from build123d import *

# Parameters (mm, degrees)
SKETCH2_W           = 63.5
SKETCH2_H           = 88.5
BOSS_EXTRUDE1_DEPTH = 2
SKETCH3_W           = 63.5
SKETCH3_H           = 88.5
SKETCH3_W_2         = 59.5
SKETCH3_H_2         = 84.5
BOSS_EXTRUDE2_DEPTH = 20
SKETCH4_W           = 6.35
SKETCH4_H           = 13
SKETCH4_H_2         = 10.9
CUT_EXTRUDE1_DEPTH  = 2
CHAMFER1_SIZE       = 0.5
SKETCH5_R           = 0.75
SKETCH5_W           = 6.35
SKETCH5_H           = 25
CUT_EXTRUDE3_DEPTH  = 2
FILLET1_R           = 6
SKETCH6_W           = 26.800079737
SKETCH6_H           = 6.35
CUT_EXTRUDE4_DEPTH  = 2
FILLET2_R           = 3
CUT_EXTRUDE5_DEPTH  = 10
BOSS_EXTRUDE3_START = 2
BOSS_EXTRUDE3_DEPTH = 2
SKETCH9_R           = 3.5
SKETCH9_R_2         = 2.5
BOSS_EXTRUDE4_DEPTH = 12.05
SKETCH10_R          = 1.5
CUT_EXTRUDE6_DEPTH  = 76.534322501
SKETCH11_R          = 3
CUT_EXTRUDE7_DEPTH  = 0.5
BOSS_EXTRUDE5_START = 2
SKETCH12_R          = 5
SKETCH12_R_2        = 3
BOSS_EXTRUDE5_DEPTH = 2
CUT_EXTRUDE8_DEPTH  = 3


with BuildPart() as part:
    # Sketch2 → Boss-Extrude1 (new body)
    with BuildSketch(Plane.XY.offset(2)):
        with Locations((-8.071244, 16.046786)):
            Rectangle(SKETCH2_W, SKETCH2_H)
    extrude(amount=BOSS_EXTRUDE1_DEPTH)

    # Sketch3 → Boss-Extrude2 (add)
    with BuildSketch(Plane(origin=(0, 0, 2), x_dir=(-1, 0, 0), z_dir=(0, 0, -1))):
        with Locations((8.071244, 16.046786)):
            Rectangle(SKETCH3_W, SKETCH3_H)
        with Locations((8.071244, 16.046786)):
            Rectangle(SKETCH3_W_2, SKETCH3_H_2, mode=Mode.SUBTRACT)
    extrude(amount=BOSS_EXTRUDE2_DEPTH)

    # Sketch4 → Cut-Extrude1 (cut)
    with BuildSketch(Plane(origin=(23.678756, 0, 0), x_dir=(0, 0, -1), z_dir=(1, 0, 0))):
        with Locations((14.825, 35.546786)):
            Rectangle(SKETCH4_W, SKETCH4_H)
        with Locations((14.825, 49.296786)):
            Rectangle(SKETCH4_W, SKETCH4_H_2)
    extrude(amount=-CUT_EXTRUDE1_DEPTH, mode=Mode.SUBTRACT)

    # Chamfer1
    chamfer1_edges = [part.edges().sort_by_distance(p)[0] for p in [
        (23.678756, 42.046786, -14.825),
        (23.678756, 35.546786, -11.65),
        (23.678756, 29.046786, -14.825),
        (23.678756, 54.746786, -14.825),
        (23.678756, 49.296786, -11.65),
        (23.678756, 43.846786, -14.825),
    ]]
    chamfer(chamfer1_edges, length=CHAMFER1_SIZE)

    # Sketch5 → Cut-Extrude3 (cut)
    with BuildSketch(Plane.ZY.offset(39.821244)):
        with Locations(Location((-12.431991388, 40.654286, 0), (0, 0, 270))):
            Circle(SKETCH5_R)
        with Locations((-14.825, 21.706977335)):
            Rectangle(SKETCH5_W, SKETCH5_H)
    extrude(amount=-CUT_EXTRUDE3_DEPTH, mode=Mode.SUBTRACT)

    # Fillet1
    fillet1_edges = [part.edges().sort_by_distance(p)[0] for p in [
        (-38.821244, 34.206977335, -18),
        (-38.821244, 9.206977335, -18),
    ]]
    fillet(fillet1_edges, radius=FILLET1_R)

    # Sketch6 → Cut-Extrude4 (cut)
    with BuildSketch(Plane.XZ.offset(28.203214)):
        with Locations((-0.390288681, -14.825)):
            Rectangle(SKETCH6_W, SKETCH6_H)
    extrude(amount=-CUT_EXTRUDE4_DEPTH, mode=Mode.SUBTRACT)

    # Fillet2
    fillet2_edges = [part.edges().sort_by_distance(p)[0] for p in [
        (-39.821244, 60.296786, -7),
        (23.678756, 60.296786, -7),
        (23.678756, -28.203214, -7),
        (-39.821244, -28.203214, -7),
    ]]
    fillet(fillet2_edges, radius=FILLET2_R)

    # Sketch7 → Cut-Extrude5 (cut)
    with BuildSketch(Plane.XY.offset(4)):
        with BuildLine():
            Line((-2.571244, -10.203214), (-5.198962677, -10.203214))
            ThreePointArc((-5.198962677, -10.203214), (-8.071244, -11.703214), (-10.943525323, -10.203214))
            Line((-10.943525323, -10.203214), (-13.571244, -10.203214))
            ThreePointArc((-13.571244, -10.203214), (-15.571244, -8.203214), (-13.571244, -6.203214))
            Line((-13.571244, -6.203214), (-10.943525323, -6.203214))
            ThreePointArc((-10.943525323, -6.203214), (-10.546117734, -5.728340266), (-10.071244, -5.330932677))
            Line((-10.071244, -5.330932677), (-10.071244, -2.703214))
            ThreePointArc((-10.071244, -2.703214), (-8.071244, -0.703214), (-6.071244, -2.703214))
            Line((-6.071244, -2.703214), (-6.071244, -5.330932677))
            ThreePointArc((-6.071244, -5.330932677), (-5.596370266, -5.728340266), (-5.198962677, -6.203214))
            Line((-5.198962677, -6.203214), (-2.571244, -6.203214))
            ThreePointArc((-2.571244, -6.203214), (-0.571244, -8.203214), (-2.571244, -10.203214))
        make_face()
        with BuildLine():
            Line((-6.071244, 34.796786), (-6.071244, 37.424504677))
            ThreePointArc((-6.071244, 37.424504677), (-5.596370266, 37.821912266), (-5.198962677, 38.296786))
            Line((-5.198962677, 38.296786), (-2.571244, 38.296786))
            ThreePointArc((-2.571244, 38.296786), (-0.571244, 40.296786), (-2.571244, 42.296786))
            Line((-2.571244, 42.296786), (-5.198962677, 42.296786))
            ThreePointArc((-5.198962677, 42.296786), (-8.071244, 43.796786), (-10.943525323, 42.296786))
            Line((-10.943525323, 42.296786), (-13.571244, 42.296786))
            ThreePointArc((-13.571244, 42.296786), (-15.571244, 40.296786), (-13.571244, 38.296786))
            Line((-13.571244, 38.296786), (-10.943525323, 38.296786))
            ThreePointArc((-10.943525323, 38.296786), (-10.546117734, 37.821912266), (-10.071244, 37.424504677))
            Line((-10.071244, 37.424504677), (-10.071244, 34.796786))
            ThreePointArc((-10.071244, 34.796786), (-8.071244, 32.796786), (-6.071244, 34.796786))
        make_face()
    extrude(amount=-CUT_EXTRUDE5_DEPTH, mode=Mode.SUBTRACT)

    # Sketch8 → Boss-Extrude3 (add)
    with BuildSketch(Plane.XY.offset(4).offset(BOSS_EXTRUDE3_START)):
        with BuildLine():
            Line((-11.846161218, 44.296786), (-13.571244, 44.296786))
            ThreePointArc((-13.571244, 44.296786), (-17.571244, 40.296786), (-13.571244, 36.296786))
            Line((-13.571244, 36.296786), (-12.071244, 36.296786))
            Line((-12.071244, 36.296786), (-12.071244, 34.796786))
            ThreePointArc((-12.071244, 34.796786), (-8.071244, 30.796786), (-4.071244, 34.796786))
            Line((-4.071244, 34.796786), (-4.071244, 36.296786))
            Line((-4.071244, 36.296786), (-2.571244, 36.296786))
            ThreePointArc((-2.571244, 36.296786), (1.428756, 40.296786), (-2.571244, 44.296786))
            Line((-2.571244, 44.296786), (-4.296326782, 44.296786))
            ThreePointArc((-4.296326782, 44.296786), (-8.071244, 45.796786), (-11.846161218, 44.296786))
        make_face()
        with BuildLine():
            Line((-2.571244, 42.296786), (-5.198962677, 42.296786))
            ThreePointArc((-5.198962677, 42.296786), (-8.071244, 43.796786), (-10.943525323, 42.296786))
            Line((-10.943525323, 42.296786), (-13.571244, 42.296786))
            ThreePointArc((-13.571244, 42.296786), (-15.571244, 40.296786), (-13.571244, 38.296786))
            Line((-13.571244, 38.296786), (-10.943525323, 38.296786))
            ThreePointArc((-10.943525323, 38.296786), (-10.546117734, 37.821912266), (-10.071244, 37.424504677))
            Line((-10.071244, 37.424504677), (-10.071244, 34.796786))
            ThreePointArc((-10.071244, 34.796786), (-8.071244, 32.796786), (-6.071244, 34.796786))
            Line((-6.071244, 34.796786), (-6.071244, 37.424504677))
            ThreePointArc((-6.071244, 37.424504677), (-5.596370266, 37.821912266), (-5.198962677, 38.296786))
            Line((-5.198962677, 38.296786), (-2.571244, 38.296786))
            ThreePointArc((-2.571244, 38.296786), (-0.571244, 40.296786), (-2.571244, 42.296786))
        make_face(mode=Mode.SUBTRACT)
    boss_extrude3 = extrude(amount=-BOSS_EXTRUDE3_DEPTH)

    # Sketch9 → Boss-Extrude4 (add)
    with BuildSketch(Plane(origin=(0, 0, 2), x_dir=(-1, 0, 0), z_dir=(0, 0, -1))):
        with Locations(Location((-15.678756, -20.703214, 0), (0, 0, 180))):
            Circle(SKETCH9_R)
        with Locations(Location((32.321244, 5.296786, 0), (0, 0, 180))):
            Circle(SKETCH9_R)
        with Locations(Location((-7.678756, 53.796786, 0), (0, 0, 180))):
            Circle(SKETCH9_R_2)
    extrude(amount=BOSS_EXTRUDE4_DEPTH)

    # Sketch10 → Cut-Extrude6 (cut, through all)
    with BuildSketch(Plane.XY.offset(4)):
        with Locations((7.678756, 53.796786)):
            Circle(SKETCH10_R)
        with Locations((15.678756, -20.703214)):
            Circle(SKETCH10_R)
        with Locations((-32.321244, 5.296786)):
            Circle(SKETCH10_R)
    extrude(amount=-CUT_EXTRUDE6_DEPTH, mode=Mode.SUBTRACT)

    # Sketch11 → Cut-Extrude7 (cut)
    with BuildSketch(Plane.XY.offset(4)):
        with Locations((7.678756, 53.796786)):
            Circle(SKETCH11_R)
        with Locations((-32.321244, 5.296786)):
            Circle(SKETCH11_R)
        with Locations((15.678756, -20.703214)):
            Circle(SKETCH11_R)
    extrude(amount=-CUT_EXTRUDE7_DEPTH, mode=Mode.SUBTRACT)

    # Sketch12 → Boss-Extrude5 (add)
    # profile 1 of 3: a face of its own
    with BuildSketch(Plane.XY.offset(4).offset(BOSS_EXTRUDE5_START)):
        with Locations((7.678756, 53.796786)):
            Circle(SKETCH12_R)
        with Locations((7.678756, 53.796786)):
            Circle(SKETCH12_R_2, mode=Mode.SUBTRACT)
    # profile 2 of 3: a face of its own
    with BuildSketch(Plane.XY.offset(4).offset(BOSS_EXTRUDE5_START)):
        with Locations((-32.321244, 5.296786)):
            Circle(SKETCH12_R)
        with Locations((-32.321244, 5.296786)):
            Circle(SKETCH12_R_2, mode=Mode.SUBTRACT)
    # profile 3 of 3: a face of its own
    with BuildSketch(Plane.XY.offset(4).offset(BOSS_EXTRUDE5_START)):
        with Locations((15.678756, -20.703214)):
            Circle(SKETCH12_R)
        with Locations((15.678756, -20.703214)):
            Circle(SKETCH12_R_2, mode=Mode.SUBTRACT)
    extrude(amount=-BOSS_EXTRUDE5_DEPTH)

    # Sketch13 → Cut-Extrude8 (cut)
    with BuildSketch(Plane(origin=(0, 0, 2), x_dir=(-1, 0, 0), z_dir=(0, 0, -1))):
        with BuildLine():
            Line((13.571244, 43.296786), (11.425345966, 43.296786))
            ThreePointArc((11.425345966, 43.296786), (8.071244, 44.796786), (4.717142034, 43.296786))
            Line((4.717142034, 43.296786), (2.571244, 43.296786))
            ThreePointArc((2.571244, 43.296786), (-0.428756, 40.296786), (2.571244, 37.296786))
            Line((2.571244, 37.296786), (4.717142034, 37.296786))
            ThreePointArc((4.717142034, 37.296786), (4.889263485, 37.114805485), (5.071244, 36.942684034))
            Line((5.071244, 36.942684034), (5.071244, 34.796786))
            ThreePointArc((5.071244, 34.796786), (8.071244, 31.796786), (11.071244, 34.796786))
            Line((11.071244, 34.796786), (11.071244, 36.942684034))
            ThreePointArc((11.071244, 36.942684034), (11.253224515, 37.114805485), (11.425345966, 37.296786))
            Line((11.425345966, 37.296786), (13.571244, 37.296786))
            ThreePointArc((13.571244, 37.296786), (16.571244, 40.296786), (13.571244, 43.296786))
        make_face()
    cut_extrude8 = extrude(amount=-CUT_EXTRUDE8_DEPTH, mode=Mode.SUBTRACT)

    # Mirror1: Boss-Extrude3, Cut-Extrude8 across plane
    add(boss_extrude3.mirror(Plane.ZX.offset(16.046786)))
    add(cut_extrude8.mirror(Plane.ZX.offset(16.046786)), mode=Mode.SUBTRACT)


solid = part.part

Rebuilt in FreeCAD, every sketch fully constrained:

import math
import FreeCAD as App
import Part
import Sketcher


def edges_at(feature, points):
    """Names of the edges that pass closest to the given points."""
    edges = feature.Shape.Edges
    near = lambda p: min(range(len(edges)), key=lambda i: edges[i].distToShape(Part.Vertex(*p))[0])
    return sorted({f"Edge{near(p) + 1}" for p in points})


def add_polygon(sketch, points):
    """Adds a closed chain of lines whose ends are joined by coincident constraints."""
    first, n = sketch.GeometryCount, len(points)
    for a, b in zip(points, points[1:] + points[:1]):
        sketch.addGeometry(Part.LineSegment(App.Vector(*a, 0), App.Vector(*b, 0)), False)
    for i in range(n):
        sketch.addConstraint(Sketcher.Constraint("Coincident", first + i, 2, first + (i + 1) % n, 1))

doc = App.newDocument("Part")
body = doc.addObject("PartDesign::Body", "Body")

sketch1 = body.newObject("Sketcher::SketchObject", "Sketch")
sketch1.AttachmentSupport = (doc.getObject("XY_Plane"), [""])
sketch1.MapMode = "FlatFace"
sketch1.AttachmentOffset = App.Placement(App.Vector(0, 0, 2), App.Rotation())
add_polygon(sketch1, [(-40, 60), (-40, -28), (24, -28), (24, 60)])
sketch1.addConstraint([
    Sketcher.Constraint("Vertical", 0),
    Sketcher.Constraint("Horizontal", 1),
    Sketcher.Constraint("Vertical", 2),
    Sketcher.Constraint("Horizontal", 3),
    Sketcher.Constraint("DistanceX", 1, 1, 1, 2, 63.5),
    Sketcher.Constraint("DistanceY", 0, 2, 0, 1, 88.5),
    Sketcher.Constraint("DistanceX", 0, 2, -1, 1, 39.821244),
    Sketcher.Constraint("DistanceY", 0, 2, -1, 1, 28.203214),
])
pad1 = body.newObject("PartDesign::Pad", "Pad")
pad1.Profile = sketch1
pad1.Length = 2

sketch2 = body.newObject("Sketcher::SketchObject", "Sketch001")
sketch2.AttachmentSupport = (doc.getObject("XY_Plane"), [""])
sketch2.MapMode = "FlatFace"
sketch2.AttachmentOffset = App.Placement(App.Vector(0, 0, 2), App.Rotation())
add_polygon(sketch2, [(24, 60), (24, -28), (-40, -28), (-40, 60)])
add_polygon(sketch2, [(-38, -26), (22, -26), (22, 58), (-38, 58)])
sketch2.addConstraint([
    Sketcher.Constraint("Vertical", 0),
    Sketcher.Constraint("Horizontal", 1),
    Sketcher.Constraint("Vertical", 2),
    Sketcher.Constraint("Horizontal", 3),
    Sketcher.Constraint("Horizontal", 4),
    Sketcher.Constraint("Vertical", 5),
    Sketcher.Constraint("Horizontal", 6),
    Sketcher.Constraint("Vertical", 7),
    Sketcher.Constraint("DistanceX", 1, 2, 1, 1, 63.5),
    Sketcher.Constraint("DistanceX", 4, 1, 4, 2, 59.5),
    Sketcher.Constraint("DistanceY", 0, 2, 0, 1, 88.5),
    Sketcher.Constraint("DistanceY", 5, 1, 5, 2, 84.5),
    Sketcher.Constraint("DistanceX", 4, 2, 0, 2, 2.0),
    Sketcher.Constraint("DistanceY", 0, 2, 4, 2, 2.0),
    Sketcher.Constraint("DistanceX", -1, 1, 0, 2, 23.678756),
    Sketcher.Constraint("DistanceY", 0, 2, -1, 1, 28.203214),
])
pad2 = body.newObject("PartDesign::Pad", "Pad001")
pad2.Profile = sketch2
pad2.Length = 20
pad2.Reversed = True

sketch3 = body.newObject("Sketcher::SketchObject", "Sketch002")
sketch3.AttachmentSupport = (doc.getObject("YZ_Plane"), [""])
sketch3.MapMode = "FlatFace"
sketch3.AttachmentOffset = App.Placement(App.Vector(0, 0, 23.678756), App.Rotation())
add_polygon(sketch3, [(42, -12), (29, -12), (29, -18), (42, -18)])
add_polygon(sketch3, [(55, -12), (44, -12), (44, -18), (55, -18)])
sketch3.addConstraint([
    Sketcher.Constraint("Horizontal", 0),
    Sketcher.Constraint("Vertical", 1),
    Sketcher.Constraint("Horizontal", 2),
    Sketcher.Constraint("Vertical", 3),
    Sketcher.Constraint("Horizontal", 4),
    Sketcher.Constraint("Vertical", 5),
    Sketcher.Constraint("Horizontal", 6),
    Sketcher.Constraint("Vertical", 7),
    Sketcher.Constraint("Horizontal", 3, 2, 4, 2),
    Sketcher.Constraint("Horizontal", 2, 2, 5, 2),
    Sketcher.Constraint("DistanceX", 0, 2, 0, 1, 13.0),
    Sketcher.Constraint("DistanceX", 4, 2, 4, 1, 10.9),
    Sketcher.Constraint("DistanceY", 1, 2, -1, 1, 18.0),
    Sketcher.Constraint("DistanceY", 1, 2, 1, 1, 6.35),
    Sketcher.Constraint("DistanceX", 3, 2, 4, 2, 1.8),
    Sketcher.Constraint("DistanceX", -1, 1, 0, 2, 29.046786),
])
pocket1 = body.newObject("PartDesign::Pocket", "Pocket")
pocket1.Profile = sketch3
pocket1.Length = 2
doc.recompute()

chamfer = body.newObject("PartDesign::Chamfer", "Chamfer")
chamfer.Base = (pocket1, edges_at(pocket1, [
    (23.679, 42.047, -14.825),
    (23.679, 35.547, -11.65),
    (23.679, 29.047, -14.825),
    (23.679, 54.747, -14.825),
    (23.679, 49.297, -11.65),
    (23.679, 43.847, -14.825),
]))
chamfer.Size = 0.5

sketch4 = body.newObject("Sketcher::SketchObject", "Sketch003")
sketch4.AttachmentSupport = (doc.getObject("YZ_Plane"), [""])
sketch4.MapMode = "FlatFace"
sketch4.AttachmentOffset = App.Placement(App.Vector(0, 0, -39.821244), App.Rotation())
sketch4.addGeometry(Part.Circle(App.Vector(40.7, -12.4, 0), App.Vector(0, 0, 1), 0.8), False)
add_polygon(sketch4, [(34.2, -18), (9.2, -18), (9.2, -11.7), (34.2, -11.7)])
sketch4.addConstraint([
    Sketcher.Constraint("Horizontal", 1),
    Sketcher.Constraint("Vertical", 2),
    Sketcher.Constraint("Horizontal", 3),
    Sketcher.Constraint("Vertical", 4),
    Sketcher.Constraint("Diameter", 0, 1.5),
    Sketcher.Constraint("DistanceX", 1, 2, 1, 1, 25.0),
    Sketcher.Constraint("DistanceY", 1, 2, -1, 1, 18.0),
    Sketcher.Constraint("DistanceY", 2, 1, 2, 2, 6.35),
    Sketcher.Constraint("DistanceY", 0, 3, -1, 1, 12.431991),
    Sketcher.Constraint("DistanceX", 1, 2, 0, 3, 31.447309),
    Sketcher.Constraint("DistanceX", -1, 1, 0, 3, 40.654286),
])
pocket2 = body.newObject("PartDesign::Pocket", "Pocket001")
pocket2.Profile = sketch4
pocket2.Length = 2
pocket2.Reversed = True
doc.recompute()

fillet = body.newObject("PartDesign::Fillet", "Fillet")
fillet.Base = (pocket2, edges_at(pocket2, [(-38.821, 34.207, -18), (-38.821, 9.207, -18)]))
fillet.Radius = 6

sketch5 = body.newObject("Sketcher::SketchObject", "Sketch004")
sketch5.AttachmentSupport = (doc.getObject("XZ_Plane"), [""])
sketch5.MapMode = "FlatFace"
sketch5.AttachmentOffset = App.Placement(App.Vector(0, 0, 28.203214), App.Rotation())
add_polygon(sketch5, [(-14, -12), (-14, -18), (13, -18), (13, -12)])
sketch5.addConstraint([
    Sketcher.Constraint("Vertical", 0),
    Sketcher.Constraint("Horizontal", 1),
    Sketcher.Constraint("Vertical", 2),
    Sketcher.Constraint("Horizontal", 3),
    Sketcher.Constraint("DistanceY", 0, 2, -1, 1, 18.0),
    Sketcher.Constraint("DistanceY", 0, 2, 0, 1, 6.35),
    Sketcher.Constraint("DistanceX", 1, 1, 1, 2, 26.80008),
    Sketcher.Constraint("DistanceX", 0, 2, -1, 1, 13.790329),
])
pocket3 = body.newObject("PartDesign::Pocket", "Pocket002")
pocket3.Profile = sketch5
pocket3.Length = 2
doc.recompute()

fillet2 = body.newObject("PartDesign::Fillet", "Fillet001")
fillet2.Base = (pocket3, edges_at(pocket3, [
    (-39.821, 60.297, -7),
    (23.679, 60.297, -7),
    (23.679, -28.203, -7),
    (-39.821, -28.203, -7),
]))
fillet2.Radius = 3

sketch6 = body.newObject("Sketcher::SketchObject", "Sketch005")
sketch6.AttachmentSupport = (doc.getObject("XY_Plane"), [""])
sketch6.MapMode = "FlatFace"
sketch6.AttachmentOffset = App.Placement(App.Vector(0, 0, 4), App.Rotation())
sketch6.addGeometry([
    Part.LineSegment(App.Vector(-5.2, -10.2, 0), App.Vector(-2.6, -10.2, 0)),
    Part.ArcOfCircle(Part.Circle(App.Vector(-2.6, -8.2, 0), App.Vector(0, 0, 1), 2), math.radians(-90), math.radians(90)),
    Part.LineSegment(App.Vector(-2.6, -6.2, 0), App.Vector(-5.2, -6.2, 0)),
    Part.ArcOfCircle(Part.Circle(App.Vector(-8.1, -8.2, 0), App.Vector(0, 0, 1), 3.5), math.radians(35), math.radians(55)),
    Part.LineSegment(App.Vector(-6.1, -5.3, 0), App.Vector(-6.1, -2.7, 0)),
    Part.ArcOfCircle(Part.Circle(App.Vector(-8.1, -2.7, 0), App.Vector(0, 0, 1), 2), math.radians(0), math.radians(180)),
    Part.LineSegment(App.Vector(-10.1, -2.7, 0), App.Vector(-10.1, -5.3, 0)),
    Part.ArcOfCircle(Part.Circle(App.Vector(-8.1, -8.2, 0), App.Vector(0, 0, 1), 3.5), math.radians(125), math.radians(145)),
    Part.LineSegment(App.Vector(-10.9, -6.2, 0), App.Vector(-13.6, -6.2, 0)),
    Part.ArcOfCircle(Part.Circle(App.Vector(-13.6, -8.2, 0), App.Vector(0, 0, 1), 2), math.radians(90), math.radians(270)),
    Part.LineSegment(App.Vector(-13.6, -10.2, 0), App.Vector(-10.9, -10.2, 0)),
    Part.ArcOfCircle(Part.Circle(App.Vector(-8.1, -8.2, 0), App.Vector(0, 0, 1), 3.5), math.radians(-145), math.radians(-35)),
    Part.LineSegment(App.Vector(-6.1, 34.8, 0), App.Vector(-6.1, 37.4, 0)),
    Part.ArcOfCircle(Part.Circle(App.Vector(-8.1, 40.3, 0), App.Vector(0, 0, 1), 3.5), math.radians(-55), math.radians(-35)),
    Part.LineSegment(App.Vector(-5.2, 38.3, 0), App.Vector(-2.6, 38.3, 0)),
    Part.ArcOfCircle(Part.Circle(App.Vector(-2.6, 40.3, 0), App.Vector(0, 0, 1), 2), math.radians(-90), math.radians(90)),
    Part.LineSegment(App.Vector(-2.6, 42.3, 0), App.Vector(-5.2, 42.3, 0)),
    Part.ArcOfCircle(Part.Circle(App.Vector(-8.1, 40.3, 0), App.Vector(0, 0, 1), 3.5), math.radians(35), math.radians(145)),
    Part.LineSegment(App.Vector(-10.9, 42.3, 0), App.Vector(-13.6, 42.3, 0)),
    Part.ArcOfCircle(Part.Circle(App.Vector(-13.6, 40.3, 0), App.Vector(0, 0, 1), 2), math.radians(90), math.radians(270)),
    Part.LineSegment(App.Vector(-13.6, 38.3, 0), App.Vector(-10.9, 38.3, 0)),
    Part.ArcOfCircle(Part.Circle(App.Vector(-8.1, 40.3, 0), App.Vector(0, 0, 1), 3.5), math.radians(-145), math.radians(-125)),
    Part.LineSegment(App.Vector(-10.1, 37.4, 0), App.Vector(-10.1, 34.8, 0)),
    Part.ArcOfCircle(Part.Circle(App.Vector(-8.1, 34.8, 0), App.Vector(0, 0, 1), 2), math.radians(180), math.radians(360)),
], False)
sketch6.addConstraint([
    Sketcher.Constraint("Tangent", 0, 2, 1, 1),
    Sketcher.Constraint("Tangent", 1, 2, 2, 1),
    Sketcher.Constraint("Coincident", 2, 2, 3, 1),
    Sketcher.Constraint("Coincident", 3, 2, 4, 1),
    Sketcher.Constraint("Tangent", 4, 2, 5, 1),
    Sketcher.Constraint("Tangent", 5, 2, 6, 1),
    Sketcher.Constraint("Coincident", 6, 2, 7, 1),
    Sketcher.Constraint("Coincident", 7, 2, 8, 1),
    Sketcher.Constraint("Tangent", 8, 2, 9, 1),
    Sketcher.Constraint("Tangent", 9, 2, 10, 1),
    Sketcher.Constraint("Coincident", 10, 2, 11, 1),
    Sketcher.Constraint("Coincident", 11, 2, 0, 1),
    Sketcher.Constraint("Coincident", 12, 2, 13, 1),
    Sketcher.Constraint("Coincident", 13, 2, 14, 1),
    Sketcher.Constraint("Tangent", 14, 2, 15, 1),
    Sketcher.Constraint("Tangent", 15, 2, 16, 1),
    Sketcher.Constraint("Coincident", 16, 2, 17, 1),
    Sketcher.Constraint("Coincident", 17, 2, 18, 1),
    Sketcher.Constraint("Tangent", 18, 2, 19, 1),
    Sketcher.Constraint("Tangent", 19, 2, 20, 1),
    Sketcher.Constraint("Coincident", 20, 2, 21, 1),
    Sketcher.Constraint("Coincident", 21, 2, 22, 1),
    Sketcher.Constraint("Tangent", 22, 2, 23, 1),
    Sketcher.Constraint("Tangent", 23, 2, 12, 1),
    Sketcher.Constraint("Horizontal", 0),
    Sketcher.Constraint("Horizontal", 2),
    Sketcher.Constraint("Vertical", 4),
    Sketcher.Constraint("Vertical", 6),
    Sketcher.Constraint("Horizontal", 8),
    Sketcher.Constraint("Horizontal", 10),
    Sketcher.Constraint("Vertical", 12),
    Sketcher.Constraint("Horizontal", 14),
    Sketcher.Constraint("Horizontal", 16),
    Sketcher.Constraint("Horizontal", 18),
    Sketcher.Constraint("Horizontal", 20),
    Sketcher.Constraint("Vertical", 22),
    Sketcher.Constraint("Coincident", 7, 3, 3, 3),
    Sketcher.Constraint("Coincident", 11, 3, 3, 3),
    Sketcher.Constraint("Coincident", 17, 3, 13, 3),
    Sketcher.Constraint("Coincident", 21, 3, 13, 3),
    Sketcher.Constraint("Equal", 1, 5),
    Sketcher.Constraint("Equal", 3, 7),
    Sketcher.Constraint("Equal", 5, 9),
    Sketcher.Constraint("Equal", 7, 11),
    Sketcher.Constraint("Equal", 11, 13),
    Sketcher.Constraint("Equal", 9, 15),
    Sketcher.Constraint("Equal", 13, 17),
    Sketcher.Constraint("Equal", 15, 19),
    Sketcher.Constraint("Equal", 17, 21),
    Sketcher.Constraint("Equal", 19, 23),
    Sketcher.Constraint("Horizontal", 1, 3, 3, 3),
    Sketcher.Constraint("Horizontal", 7, 3, 9, 3),
    Sketcher.Constraint("Horizontal", 13, 3, 15, 3),
    Sketcher.Constraint("Horizontal", 17, 3, 19, 3),
    Sketcher.Constraint("Horizontal", 3, 2, 6, 2),
    Sketcher.Constraint("Horizontal", 12, 2, 21, 2),
    Sketcher.Constraint("Vertical", 11, 3, 13, 3),
    Sketcher.Constraint("Vertical", 1, 3, 15, 3),
    Sketcher.Constraint("Vertical", 9, 3, 19, 3),
    Sketcher.Constraint("Equal", 2, 8),
    Sketcher.Constraint("Equal", 20, 4),
    Sketcher.Constraint("Equal", 6, 12),
    Sketcher.Constraint("Radius", 1, 2.0),
    Sketcher.Constraint("Radius", 3, 3.5),
    Sketcher.Constraint("DistanceX", 9, 3, 1, 3, 11.0),
    Sketcher.Constraint("DistanceY", 5, 3, 13, 3, 43.0),
    Sketcher.Constraint("DistanceX", 1, 3, -1, 1, 2.571244),
    Sketcher.Constraint("DistanceY", 1, 3, -1, 1, 8.203214),
])
pocket4 = body.newObject("PartDesign::Pocket", "Pocket003")
pocket4.Profile = sketch6
pocket4.Length = 10

sketch7 = body.newObject("Sketcher::SketchObject", "Sketch006")
sketch7.AttachmentSupport = (doc.getObject("XY_Plane"), [""])
sketch7.MapMode = "FlatFace"
sketch7.AttachmentOffset = App.Placement(App.Vector(0, 0, 6), App.Rotation())
sketch7.addGeometry([
    Part.LineSegment(App.Vector(-11.8, 44.3, 0), App.Vector(-13.6, 44.3, 0)),
    Part.ArcOfCircle(Part.Circle(App.Vector(-13.6, 40.3, 0), App.Vector(0, 0, 1), 4), math.radians(90), math.radians(270)),
    Part.LineSegment(App.Vector(-13.6, 36.3, 0), App.Vector(-12.1, 36.3, 0)),
    Part.LineSegment(App.Vector(-12.1, 36.3, 0), App.Vector(-12.1, 34.8, 0)),
    Part.ArcOfCircle(Part.Circle(App.Vector(-8.1, 34.8, 0), App.Vector(0, 0, 1), 4), math.radians(180), math.radians(360)),
    Part.LineSegment(App.Vector(-4.1, 34.8, 0), App.Vector(-4.1, 36.3, 0)),
    Part.LineSegment(App.Vector(-4.1, 36.3, 0), App.Vector(-2.6, 36.3, 0)),
    Part.ArcOfCircle(Part.Circle(App.Vector(-2.6, 40.3, 0), App.Vector(0, 0, 1), 4), math.radians(-90), math.radians(90)),
    Part.LineSegment(App.Vector(-2.6, 44.3, 0), App.Vector(-4.3, 44.3, 0)),
    Part.ArcOfCircle(Part.Circle(App.Vector(-8.1, 40.3, 0), App.Vector(0, 0, 1), 5.5), math.radians(47), math.radians(133)),
    Part.LineSegment(App.Vector(-5.2, 42.3, 0), App.Vector(-2.6, 42.3, 0)),
    Part.ArcOfCircle(Part.Circle(App.Vector(-2.6, 40.3, 0), App.Vector(0, 0, 1), 2), math.radians(-90), math.radians(90)),
    Part.LineSegment(App.Vector(-2.6, 38.3, 0), App.Vector(-5.2, 38.3, 0)),
    Part.ArcOfCircle(Part.Circle(App.Vector(-8.1, 40.3, 0), App.Vector(0, 0, 1), 3.5), math.radians(-55), math.radians(-35)),
    Part.LineSegment(App.Vector(-6.1, 37.4, 0), App.Vector(-6.1, 34.8, 0)),
    Part.ArcOfCircle(Part.Circle(App.Vector(-8.1, 34.8, 0), App.Vector(0, 0, 1), 2), math.radians(180), math.radians(360)),
    Part.LineSegment(App.Vector(-10.1, 34.8, 0), App.Vector(-10.1, 37.4, 0)),
    Part.ArcOfCircle(Part.Circle(App.Vector(-8.1, 40.3, 0), App.Vector(0, 0, 1), 3.5), math.radians(-145), math.radians(-125)),
    Part.LineSegment(App.Vector(-10.9, 38.3, 0), App.Vector(-13.6, 38.3, 0)),
    Part.ArcOfCircle(Part.Circle(App.Vector(-13.6, 40.3, 0), App.Vector(0, 0, 1), 2), math.radians(90), math.radians(270)),
    Part.LineSegment(App.Vector(-13.6, 42.3, 0), App.Vector(-10.9, 42.3, 0)),
    Part.ArcOfCircle(Part.Circle(App.Vector(-8.1, 40.3, 0), App.Vector(0, 0, 1), 3.5), math.radians(35), math.radians(145)),
], False)
sketch7.addConstraint([
    Sketcher.Constraint("Tangent", 0, 2, 1, 1),
    Sketcher.Constraint("Tangent", 1, 2, 2, 1),
    Sketcher.Constraint("Coincident", 2, 2, 3, 1),
    Sketcher.Constraint("Tangent", 3, 2, 4, 1),
    Sketcher.Constraint("Tangent", 4, 2, 5, 1),
    Sketcher.Constraint("Coincident", 5, 2, 6, 1),
    Sketcher.Constraint("Tangent", 6, 2, 7, 1),
    Sketcher.Constraint("Tangent", 7, 2, 8, 1),
    Sketcher.Constraint("Coincident", 8, 2, 9, 1),
    Sketcher.Constraint("Coincident", 9, 2, 0, 1),
    Sketcher.Constraint("Tangent", 10, 2, 11, 2),
    Sketcher.Constraint("Tangent", 11, 1, 12, 1),
    Sketcher.Constraint("Coincident", 12, 2, 13, 2),
    Sketcher.Constraint("Coincident", 13, 1, 14, 1),
    Sketcher.Constraint("Tangent", 14, 2, 15, 2),
    Sketcher.Constraint("Tangent", 15, 1, 16, 1),
    Sketcher.Constraint("Coincident", 16, 2, 17, 2),
    Sketcher.Constraint("Coincident", 17, 1, 18, 1),
    Sketcher.Constraint("Tangent", 18, 2, 19, 2),
    Sketcher.Constraint("Tangent", 19, 1, 20, 1),
    Sketcher.Constraint("Coincident", 20, 2, 21, 2),
    Sketcher.Constraint("Coincident", 21, 1, 10, 1),
    Sketcher.Constraint("Horizontal", 0),
    Sketcher.Constraint("Horizontal", 2),
    Sketcher.Constraint("Vertical", 3),
    Sketcher.Constraint("Vertical", 5),
    Sketcher.Constraint("Horizontal", 6),
    Sketcher.Constraint("Horizontal", 8),
    Sketcher.Constraint("Horizontal", 10),
    Sketcher.Constraint("Horizontal", 12),
    Sketcher.Constraint("Vertical", 14),
    Sketcher.Constraint("Vertical", 16),
    Sketcher.Constraint("Horizontal", 18),
    Sketcher.Constraint("Horizontal", 20),
    Sketcher.Constraint("Coincident", 11, 3, 7, 3),
    Sketcher.Constraint("Coincident", 13, 3, 9, 3),
    Sketcher.Constraint("Coincident", 15, 3, 4, 3),
    Sketcher.Constraint("Coincident", 17, 3, 9, 3),
    Sketcher.Constraint("Coincident", 19, 3, 1, 3),
    Sketcher.Constraint("Coincident", 21, 3, 9, 3),
    Sketcher.Constraint("Equal", 1, 4),
    Sketcher.Constraint("Equal", 4, 7),
    Sketcher.Constraint("Equal", 11, 15),
    Sketcher.Constraint("Equal", 13, 17),
    Sketcher.Constraint("Equal", 15, 19),
    Sketcher.Constraint("Equal", 17, 21),
    Sketcher.Constraint("Horizontal", 1, 3, 7, 3),
    Sketcher.Constraint("Horizontal", 7, 3, 9, 3),
    Sketcher.Constraint("Horizontal", 13, 1, 16, 2),
    Sketcher.Constraint("Equal", 2, 6),
    Sketcher.Constraint("Equal", 6, 3),
    Sketcher.Constraint("Radius", 1, 4.0),
    Sketcher.Constraint("Radius", 11, 2.0),
    Sketcher.Constraint("Radius", 9, 5.5),
    Sketcher.Constraint("Radius", 13, 3.5),
    Sketcher.Constraint("DistanceX", 2, 1, 2, 2, 1.5),
    Sketcher.Constraint("DistanceX", 9, 2, -1, 1, 11.846161),
    Sketcher.Constraint("DistanceY", -1, 1, 1, 3, 40.296786),
])
pad3 = body.newObject("PartDesign::Pad", "Pad002")
pad3.Profile = sketch7
pad3.Length = 2
pad3.Reversed = True

sketch8 = body.newObject("Sketcher::SketchObject", "Sketch007")
sketch8.AttachmentSupport = (doc.getObject("XY_Plane"), [""])
sketch8.MapMode = "FlatFace"
sketch8.AttachmentOffset = App.Placement(App.Vector(0, 0, 2), App.Rotation())
sketch8.addGeometry([
    Part.Circle(App.Vector(15.7, -20.7, 0), App.Vector(0, 0, 1), 3.5),
    Part.Circle(App.Vector(-32.3, 5.3, 0), App.Vector(0, 0, 1), 3.5),
    Part.Circle(App.Vector(7.7, 53.8, 0), App.Vector(0, 0, 1), 2.5),
], False)
sketch8.addConstraint([
    Sketcher.Constraint("Equal", 0, 1),
    Sketcher.Constraint("Diameter", 0, 7.0),
    Sketcher.Constraint("Diameter", 2, 5.0),
    Sketcher.Constraint("DistanceX", 1, 3, 0, 3, 48.0),
    Sketcher.Constraint("DistanceY", 0, 3, 1, 3, 26.0),
    Sketcher.Constraint("DistanceX", 1, 3, 2, 3, 40.0),
    Sketcher.Constraint("DistanceY", 1, 3, 2, 3, 48.5),
    Sketcher.Constraint("DistanceX", -1, 1, 0, 3, 15.678756),
    Sketcher.Constraint("DistanceY", 0, 3, -1, 1, 20.703214),
])
pad4 = body.newObject("PartDesign::Pad", "Pad003")
pad4.Profile = sketch8
pad4.Length = 12.05
pad4.Reversed = True

sketch9 = body.newObject("Sketcher::SketchObject", "Sketch008")
sketch9.AttachmentSupport = (doc.getObject("XY_Plane"), [""])
sketch9.MapMode = "FlatFace"
sketch9.AttachmentOffset = App.Placement(App.Vector(0, 0, 4), App.Rotation())
sketch9.addGeometry([
    Part.Circle(App.Vector(7.7, 53.8, 0), App.Vector(0, 0, 1), 1.5),
    Part.Circle(App.Vector(15.7, -20.7, 0), App.Vector(0, 0, 1), 1.5),
    Part.Circle(App.Vector(-32.3, 5.3, 0), App.Vector(0, 0, 1), 1.5),
], False)
sketch9.addConstraint([
    Sketcher.Constraint("Equal", 0, 1),
    Sketcher.Constraint("Equal", 1, 2),
    Sketcher.Constraint("Diameter", 0, 3.0),
    Sketcher.Constraint("DistanceX", 0, 3, 1, 3, 8.0),
    Sketcher.Constraint("DistanceX", 2, 3, 1, 3, 48.0),
    Sketcher.Constraint("DistanceY", 1, 3, 2, 3, 26.0),
    Sketcher.Constraint("DistanceY", 1, 3, 0, 3, 74.5),
    Sketcher.Constraint("DistanceX", -1, 1, 0, 3, 7.678756),
    Sketcher.Constraint("DistanceY", -1, 1, 0, 3, 53.796786),
])
pocket5 = body.newObject("PartDesign::Pocket", "Pocket004")
pocket5.Profile = sketch9
pocket5.Type = "ThroughAll"

sketch10 = body.newObject("Sketcher::SketchObject", "Sketch009")
sketch10.AttachmentSupport = (doc.getObject("XY_Plane"), [""])
sketch10.MapMode = "FlatFace"
sketch10.AttachmentOffset = App.Placement(App.Vector(0, 0, 4), App.Rotation())
sketch10.addGeometry([
    Part.Circle(App.Vector(7.7, 53.8, 0), App.Vector(0, 0, 1), 3),
    Part.Circle(App.Vector(-32.3, 5.3, 0), App.Vector(0, 0, 1), 3),
    Part.Circle(App.Vector(15.7, -20.7, 0), App.Vector(0, 0, 1), 3),
], False)
sketch10.addConstraint([
    Sketcher.Constraint("Equal", 0, 1),
    Sketcher.Constraint("Equal", 1, 2),
    Sketcher.Constraint("Diameter", 0, 6.0),
    Sketcher.Constraint("DistanceX", 1, 3, 0, 3, 40.0),
    Sketcher.Constraint("DistanceX", 1, 3, 2, 3, 48.0),
    Sketcher.Constraint("DistanceY", 2, 3, 1, 3, 26.0),
    Sketcher.Constraint("DistanceY", 1, 3, 0, 3, 48.5),
    Sketcher.Constraint("DistanceX", -1, 1, 0, 3, 7.678756),
    Sketcher.Constraint("DistanceY", -1, 1, 0, 3, 53.796786),
])
pocket6 = body.newObject("PartDesign::Pocket", "Pocket005")
pocket6.Profile = sketch10
pocket6.Length = 0.5

sketch11 = body.newObject("Sketcher::SketchObject", "Sketch010")
sketch11.AttachmentSupport = (doc.getObject("XY_Plane"), [""])
sketch11.MapMode = "FlatFace"
sketch11.AttachmentOffset = App.Placement(App.Vector(0, 0, 6), App.Rotation())
sketch11.addGeometry([
    Part.Circle(App.Vector(7.7, 53.8, 0), App.Vector(0, 0, 1), 5),
    Part.Circle(App.Vector(7.7, 53.8, 0), App.Vector(0, 0, 1), 3),
    Part.Circle(App.Vector(-32.3, 5.3, 0), App.Vector(0, 0, 1), 5),
    Part.Circle(App.Vector(-32.3, 5.3, 0), App.Vector(0, 0, 1), 3),
    Part.Circle(App.Vector(15.7, -20.7, 0), App.Vector(0, 0, 1), 5),
    Part.Circle(App.Vector(15.7, -20.7, 0), App.Vector(0, 0, 1), 3),
], False)
sketch11.addConstraint([
    Sketcher.Constraint("Coincident", 1, 3, 0, 3),
    Sketcher.Constraint("Coincident", 3, 3, 2, 3),
    Sketcher.Constraint("Coincident", 5, 3, 4, 3),
    Sketcher.Constraint("Equal", 0, 2),
    Sketcher.Constraint("Equal", 1, 3),
    Sketcher.Constraint("Equal", 2, 4),
    Sketcher.Constraint("Equal", 3, 5),
    Sketcher.Constraint("Diameter", 0, 10.0),
    Sketcher.Constraint("Diameter", 1, 6.0),
    Sketcher.Constraint("DistanceX", 2, 3, 0, 3, 40.0),
    Sketcher.Constraint("DistanceX", 2, 3, 4, 3, 48.0),
    Sketcher.Constraint("DistanceY", 4, 3, 2, 3, 26.0),
    Sketcher.Constraint("DistanceY", 2, 3, 0, 3, 48.5),
    Sketcher.Constraint("DistanceX", -1, 1, 0, 3, 7.678756),
    Sketcher.Constraint("DistanceY", -1, 1, 0, 3, 53.796786),
])
pad5 = body.newObject("PartDesign::Pad", "Pad004")
pad5.Profile = sketch11
pad5.Length = 2
pad5.Reversed = True

sketch12 = body.newObject("Sketcher::SketchObject", "Sketch011")
sketch12.AttachmentSupport = (doc.getObject("XY_Plane"), [""])
sketch12.MapMode = "FlatFace"
sketch12.AttachmentOffset = App.Placement(App.Vector(0, 0, 2), App.Rotation())
sketch12.addGeometry([
    Part.LineSegment(App.Vector(-13.6, 43.3, 0), App.Vector(-11.4, 43.3, 0)),
    Part.ArcOfCircle(Part.Circle(App.Vector(-8.1, 40.3, 0), App.Vector(0, 0, 1), 4.5), math.radians(42), math.radians(138)),
    Part.LineSegment(App.Vector(-4.7, 43.3, 0), App.Vector(-2.6, 43.3, 0)),
    Part.ArcOfCircle(Part.Circle(App.Vector(-2.6, 40.3, 0), App.Vector(0, 0, 1), 3), math.radians(-90), math.radians(90)),
    Part.LineSegment(App.Vector(-2.6, 37.3, 0), App.Vector(-4.7, 37.3, 0)),
    Part.ArcOfCircle(Part.Circle(App.Vector(-8.1, 40.3, 0), App.Vector(0, 0, 1), 4.5), math.radians(-48.19), math.radians(-41.81)),
    Part.LineSegment(App.Vector(-5.1, 36.9, 0), App.Vector(-5.1, 34.8, 0)),
    Part.ArcOfCircle(Part.Circle(App.Vector(-8.1, 34.8, 0), App.Vector(0, 0, 1), 3), math.radians(180), math.radians(360)),
    Part.LineSegment(App.Vector(-11.1, 34.8, 0), App.Vector(-11.1, 36.9, 0)),
    Part.ArcOfCircle(Part.Circle(App.Vector(-8.1, 40.3, 0), App.Vector(0, 0, 1), 4.5), math.radians(-138.19), math.radians(-131.81)),
    Part.LineSegment(App.Vector(-11.4, 37.3, 0), App.Vector(-13.6, 37.3, 0)),
    Part.ArcOfCircle(Part.Circle(App.Vector(-13.6, 40.3, 0), App.Vector(0, 0, 1), 3), math.radians(90), math.radians(270)),
], False)
sketch12.addConstraint([
    Sketcher.Constraint("Coincident", 0, 2, 1, 2),
    Sketcher.Constraint("Coincident", 1, 1, 2, 1),
    Sketcher.Constraint("Tangent", 2, 2, 3, 2),
    Sketcher.Constraint("Tangent", 3, 1, 4, 1),
    Sketcher.Constraint("Coincident", 4, 2, 5, 2),
    Sketcher.Constraint("Coincident", 5, 1, 6, 1),
    Sketcher.Constraint("Tangent", 6, 2, 7, 2),
    Sketcher.Constraint("Tangent", 7, 1, 8, 1),
    Sketcher.Constraint("Coincident", 8, 2, 9, 2),
    Sketcher.Constraint("Coincident", 9, 1, 10, 1),
    Sketcher.Constraint("Tangent", 10, 2, 11, 2),
    Sketcher.Constraint("Tangent", 11, 1, 0, 1),
    Sketcher.Constraint("Horizontal", 0),
    Sketcher.Constraint("Horizontal", 2),
    Sketcher.Constraint("Horizontal", 4),
    Sketcher.Constraint("Vertical", 6),
    Sketcher.Constraint("Vertical", 8),
    Sketcher.Constraint("Horizontal", 10),
    Sketcher.Constraint("Coincident", 5, 3, 1, 3),
    Sketcher.Constraint("Coincident", 9, 3, 1, 3),
    Sketcher.Constraint("Equal", 1, 5),
    Sketcher.Constraint("Equal", 3, 7),
    Sketcher.Constraint("Equal", 5, 9),
    Sketcher.Constraint("Equal", 7, 11),
    Sketcher.Constraint("Horizontal", 1, 3, 3, 3),
    Sketcher.Constraint("Horizontal", 9, 3, 11, 3),
    Sketcher.Constraint("Horizontal", 5, 1, 8, 2),
    Sketcher.Constraint("Equal", 0, 2),
    Sketcher.Constraint("Equal", 10, 6),
    Sketcher.Constraint("Radius", 3, 3.0),
    Sketcher.Constraint("Radius", 1, 4.5),
    Sketcher.Constraint("DistanceX", 11, 3, 3, 3, 11.0),
    Sketcher.Constraint("DistanceX", 1, 3, -1, 1, 8.071244),
    Sketcher.Constraint("DistanceY", -1, 1, 1, 3, 40.296786),
])
pocket7 = body.newObject("PartDesign::Pocket", "Pocket006")
pocket7.Profile = sketch12
pocket7.Length = 3
pocket7.Reversed = True
doc.recompute()

datumplane = body.newObject("PartDesign::Plane", "DatumPlane")
datumplane.AttachmentSupport = (doc.getObject("XZ_Plane"), [""])
datumplane.MapMode = "FlatFace"
datumplane.AttachmentOffset = App.Placement(App.Vector(0, 0, -16.046786), App.Rotation())
mirrored = body.newObject("PartDesign::Mirrored", "Mirrored")
mirrored.Originals = [pad3, pocket7]
mirrored.MirrorPlane = (datumplane, [""])
body.Tip = mirrored

doc.recompute()
